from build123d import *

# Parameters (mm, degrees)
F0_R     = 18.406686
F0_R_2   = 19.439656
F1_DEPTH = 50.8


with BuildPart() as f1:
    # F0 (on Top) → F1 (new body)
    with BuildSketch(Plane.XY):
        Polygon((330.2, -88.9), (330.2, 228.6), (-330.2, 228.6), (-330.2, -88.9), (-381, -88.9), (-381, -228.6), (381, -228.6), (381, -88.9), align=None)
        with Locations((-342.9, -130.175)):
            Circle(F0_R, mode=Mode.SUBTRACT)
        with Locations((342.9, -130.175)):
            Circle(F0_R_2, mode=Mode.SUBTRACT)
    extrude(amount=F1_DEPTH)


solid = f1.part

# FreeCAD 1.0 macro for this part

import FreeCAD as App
import Part
import Sketcher

V = App.Vector
Q = App.Units.Quantity


def add_polygon(sketch, points):
    """Adds a closed chain of lines whose ends are joined by coincident constraints."""
    first, n = sketch.GeometryCount, len(points)
    for a, b in zip(points, points[1:] + points[:1]):
        sketch.addGeometry(Part.LineSegment(App.Vector(*a, 0), App.Vector(*b, 0)), False)
    for i in range(n):
        sketch.addConstraint(Sketcher.Constraint("Coincident", first + i, 2, first + (i + 1) % n, 1))

doc = App.newDocument("Part")
body = doc.addObject("PartDesign::Body", "Body")

sketch1 = body.newObject("Sketcher::SketchObject", "Sketch")
sketch1.AttachmentSupport = (doc.getObject("XY_Plane"), [""])
sketch1.MapMode = "FlatFace"
add_polygon(sketch1, [(330.2, -88.9), (330.2, 228.6), (-330.2, 228.6), (-330.2, -88.9), (-381, -88.9), (-381, -228.6), (381, -228.6), (381, -88.9)])
sketch1.addGeometry(Part.Circle(V(-342.9, -130.175, 0), V(0, 0, 1), 18.406686), False)
sketch1.addGeometry(Part.Circle(V(342.9, -130.175, 0), V(0, 0, 1), 19.439656), False)
sketch1.addConstraint([
    Sketcher.Constraint("Vertical", 0),
    Sketcher.Constraint("Horizontal", 1),
    Sketcher.Constraint("Vertical", 2),
    Sketcher.Constraint("Horizontal", 3),
    Sketcher.Constraint("Vertical", 4),
    Sketcher.Constraint("Horizontal", 5),
    Sketcher.Constraint("Vertical", 6),
    Sketcher.Constraint("Horizontal", 7),
    Sketcher.Constraint("Symmetric", 8, 3, 9, 3, -2),
    Sketcher.Constraint("Symmetric", 3, 2, 6, 2, -2),
    Sketcher.Constraint("Equal", 3, 7),
    Sketcher.Constraint("DistanceX", 1, 2, 1, 1, Q("26 in")),
    Sketcher.Constraint("DistanceX", 3, 2, 3, 1, Q("2 in")),
    Sketcher.Constraint("DistanceY", 0, 1, 0, 2, Q("12.5 in")),
    Sketcher.Constraint("DistanceY", 4, 2, 4, 1, Q("5.5 in")),
    Sketcher.Constraint("DistanceY", -1, 1, 0, 2, Q("9 in")),
    Sketcher.Constraint("DistanceX", 8, 3, 9, 3, Q("27 in")),
    Sketcher.Constraint("DistanceY", 8, 3, -1, 1, Q("5.125 in")),
    Sketcher.Constraint("Diameter", 8, Q("36.813372 mm")),
    Sketcher.Constraint("Diameter", 9, Q("38.879312 mm")),
])
pad1 = body.newObject("PartDesign::Pad", "Pad")
pad1.Profile = sketch1
pad1.Length = Q("2 in")

doc.recompute()
